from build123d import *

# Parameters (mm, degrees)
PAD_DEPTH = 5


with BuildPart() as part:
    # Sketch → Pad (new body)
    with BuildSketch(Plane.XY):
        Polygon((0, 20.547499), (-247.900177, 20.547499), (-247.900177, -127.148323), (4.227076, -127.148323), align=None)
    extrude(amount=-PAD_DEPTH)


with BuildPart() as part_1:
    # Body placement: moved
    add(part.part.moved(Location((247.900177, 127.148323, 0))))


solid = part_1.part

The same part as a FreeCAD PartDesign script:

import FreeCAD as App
import Part
import Sketcher

V = App.Vector

doc = App.newDocument("Part")
body = doc.addObject("PartDesign::Body", "Body")

sketch1 = doc.addObject("Sketcher::SketchObject", "Sketch")
body.addObject(sketch1)
sketch1.AttachmentSupport = (doc.XY_Plane, [""])
sketch1.MapMode = "FlatFace"
sketch1.addGeometry(Part.LineSegment(V(0, 21, 0), V(-248, 21, 0)), False)
sketch1.addGeometry(Part.LineSegment(V(-248, 21, 0), V(-248, -127, 0)), False)
sketch1.addGeometry(Part.LineSegment(V(-248, -127, 0), V(4, -127, 0)), False)
sketch1.addGeometry(Part.LineSegment(V(4, -127, 0), V(0, 21, 0)), False)
sketch1.addConstraint(Sketcher.Constraint("Coincident", 0, 2, 1, 1))
sketch1.addConstraint(Sketcher.Constraint("Coincident", 1, 2, 2, 1))
sketch1.addConstraint(Sketcher.Constraint("Coincident", 2, 2, 3, 1))
sketch1.addConstraint(Sketcher.Constraint("Coincident", 3, 2, 0, 1))
sketch1.addConstraint(Sketcher.Constraint("Horizontal", 0))
sketch1.addConstraint(Sketcher.Constraint("Vertical", 1))
sketch1.addConstraint(Sketcher.Constraint("Horizontal", 2))
sketch1.addConstraint(Sketcher.Constraint("PointOnObject", 3, 2, -2))
sketch1.addConstraint(Sketcher.Constraint("Distance", 3, 147.756299))
sketch1.addConstraint(Sketcher.Constraint("DistanceY", 1, 2, 1, 1, 147.695822))
sketch1.addConstraint(Sketcher.Constraint("DistanceY", -1, 1, 0, 2, 20.547499))
sketch1.addConstraint(Sketcher.Constraint("DistanceX", 0, 2, 0, 1, 247.900177))
pad1 = doc.addObject("PartDesign::Pad", "Pad")
body.addObject(pad1)
pad1.Profile = sketch1
pad1.Length = 5
pad1.Reversed = True
body2 = doc.addObject("PartDesign::Body", "Body001")
doc.recompute()

body.Placement = App.Placement(V(247.900177, 127.148323, 0), App.Rotation(V(0, 0, 1), 0))
boolean = doc.addObject("PartDesign::Boolean", "Boolean")
body2.addObject(boolean)
boolean.Type = "Fuse"
boolean.addObjects([body])

doc.recompute()
